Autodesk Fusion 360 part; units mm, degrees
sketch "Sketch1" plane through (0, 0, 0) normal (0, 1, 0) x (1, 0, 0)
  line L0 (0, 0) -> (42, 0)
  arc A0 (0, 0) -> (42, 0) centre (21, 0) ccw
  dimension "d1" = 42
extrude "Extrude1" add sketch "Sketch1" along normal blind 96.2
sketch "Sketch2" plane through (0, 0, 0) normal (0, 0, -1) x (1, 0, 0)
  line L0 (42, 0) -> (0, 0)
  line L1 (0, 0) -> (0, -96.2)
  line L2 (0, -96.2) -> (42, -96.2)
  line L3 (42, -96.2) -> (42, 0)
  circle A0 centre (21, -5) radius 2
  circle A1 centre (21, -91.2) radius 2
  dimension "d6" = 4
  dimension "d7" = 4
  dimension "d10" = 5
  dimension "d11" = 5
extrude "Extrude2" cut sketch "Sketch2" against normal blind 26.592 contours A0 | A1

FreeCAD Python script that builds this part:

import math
import FreeCAD as App
import Part
import Sketcher
from FreeCAD import Vector
Q = App.Units.Quantity

doc = App.newDocument("Part")
params = doc.addObject("Spreadsheet::Sheet", "Params")
for row, (alias, value) in enumerate([
    ("sketch1_radius", "21 mm"),
    ("pad1_length", "96.2 mm"),
    ("sketch2_diameter", "4 mm"),
    ("pocket1_length", "26.592 mm"),
], start=1):
    params.set(f"A{row}", alias)
    params.set(f"B{row}", "=" + value)
    params.setAlias(f"B{row}", alias)

body = doc.addObject("PartDesign::Body", "Body")

# Sketch on XZ plane
sketch1 = body.newObject("Sketcher::SketchObject", "Sketch")
sketch1.AttachmentSupport = (doc.getObject("XZ_Plane"), [""])
sketch1.MapMode = "FlatFace"
sketch1.addGeometry([
    Part.LineSegment(Vector(42, 0, 0), Vector(0, 0, 0)),
    Part.ArcOfCircle(Part.Circle(Vector(21, 0, 0), Vector(0, 0, 1), 21), math.radians(0), math.radians(180)),
], False)
sketch1.addConstraint([
    Sketcher.Constraint("Coincident", 0, 1, 1, 1),
    Sketcher.Constraint("Coincident", 1, 2, 0, 2),
    Sketcher.Constraint("Horizontal", 0),
    Sketcher.Constraint("Coincident", 1, 2, -1, 1),
    Sketcher.Constraint("PointOnObject", 1, 3, -1),
    Sketcher.Constraint("Radius", 1, Q("21 mm")),
])
sketch1.setExpression("Constraints[5]", "Params.sketch1_radius")
pad1 = body.newObject("PartDesign::Pad", "Pad")
pad1.Profile = sketch1
pad1.setExpression("Length", "Params.pad1_length")
pad1.Reversed = True

# Sketch on XY plane
sketch2 = body.newObject("Sketcher::SketchObject", "Sketch001")
sketch2.AttachmentSupport = (doc.getObject("XY_Plane"), [""])
sketch2.MapMode = "FlatFace"
sketch2.addGeometry([
    Part.Circle(Vector(21, 5, 0), Vector(0, 0, 1), 2),
    Part.Circle(Vector(21, 91.2, 0), Vector(0, 0, 1), 2),
], False)
sketch2.addConstraint([
    Sketcher.Constraint("Equal", 0, 1),
    Sketcher.Constraint("Vertical", 0, 3, 1, 3),
    Sketcher.Constraint("Diameter", 0, Q("4 mm")),
    Sketcher.Constraint("DistanceY", -1, 1, 0, 3, Q("5 mm")),
    Sketcher.Constraint("DistanceX", -1, 1, 0, 3, Q("21 mm")),
    Sketcher.Constraint("DistanceY", -1, 1, 1, 3, Q("91.2 mm")),
])
sketch2.setExpression("Constraints[2]", "Params.sketch2_diameter")
pocket1 = body.newObject("PartDesign::Pocket", "Pocket")
pocket1.Profile = sketch2
pocket1.setExpression("Length", "Params.pocket1_length")
pocket1.Reversed = True

doc.recompute()
